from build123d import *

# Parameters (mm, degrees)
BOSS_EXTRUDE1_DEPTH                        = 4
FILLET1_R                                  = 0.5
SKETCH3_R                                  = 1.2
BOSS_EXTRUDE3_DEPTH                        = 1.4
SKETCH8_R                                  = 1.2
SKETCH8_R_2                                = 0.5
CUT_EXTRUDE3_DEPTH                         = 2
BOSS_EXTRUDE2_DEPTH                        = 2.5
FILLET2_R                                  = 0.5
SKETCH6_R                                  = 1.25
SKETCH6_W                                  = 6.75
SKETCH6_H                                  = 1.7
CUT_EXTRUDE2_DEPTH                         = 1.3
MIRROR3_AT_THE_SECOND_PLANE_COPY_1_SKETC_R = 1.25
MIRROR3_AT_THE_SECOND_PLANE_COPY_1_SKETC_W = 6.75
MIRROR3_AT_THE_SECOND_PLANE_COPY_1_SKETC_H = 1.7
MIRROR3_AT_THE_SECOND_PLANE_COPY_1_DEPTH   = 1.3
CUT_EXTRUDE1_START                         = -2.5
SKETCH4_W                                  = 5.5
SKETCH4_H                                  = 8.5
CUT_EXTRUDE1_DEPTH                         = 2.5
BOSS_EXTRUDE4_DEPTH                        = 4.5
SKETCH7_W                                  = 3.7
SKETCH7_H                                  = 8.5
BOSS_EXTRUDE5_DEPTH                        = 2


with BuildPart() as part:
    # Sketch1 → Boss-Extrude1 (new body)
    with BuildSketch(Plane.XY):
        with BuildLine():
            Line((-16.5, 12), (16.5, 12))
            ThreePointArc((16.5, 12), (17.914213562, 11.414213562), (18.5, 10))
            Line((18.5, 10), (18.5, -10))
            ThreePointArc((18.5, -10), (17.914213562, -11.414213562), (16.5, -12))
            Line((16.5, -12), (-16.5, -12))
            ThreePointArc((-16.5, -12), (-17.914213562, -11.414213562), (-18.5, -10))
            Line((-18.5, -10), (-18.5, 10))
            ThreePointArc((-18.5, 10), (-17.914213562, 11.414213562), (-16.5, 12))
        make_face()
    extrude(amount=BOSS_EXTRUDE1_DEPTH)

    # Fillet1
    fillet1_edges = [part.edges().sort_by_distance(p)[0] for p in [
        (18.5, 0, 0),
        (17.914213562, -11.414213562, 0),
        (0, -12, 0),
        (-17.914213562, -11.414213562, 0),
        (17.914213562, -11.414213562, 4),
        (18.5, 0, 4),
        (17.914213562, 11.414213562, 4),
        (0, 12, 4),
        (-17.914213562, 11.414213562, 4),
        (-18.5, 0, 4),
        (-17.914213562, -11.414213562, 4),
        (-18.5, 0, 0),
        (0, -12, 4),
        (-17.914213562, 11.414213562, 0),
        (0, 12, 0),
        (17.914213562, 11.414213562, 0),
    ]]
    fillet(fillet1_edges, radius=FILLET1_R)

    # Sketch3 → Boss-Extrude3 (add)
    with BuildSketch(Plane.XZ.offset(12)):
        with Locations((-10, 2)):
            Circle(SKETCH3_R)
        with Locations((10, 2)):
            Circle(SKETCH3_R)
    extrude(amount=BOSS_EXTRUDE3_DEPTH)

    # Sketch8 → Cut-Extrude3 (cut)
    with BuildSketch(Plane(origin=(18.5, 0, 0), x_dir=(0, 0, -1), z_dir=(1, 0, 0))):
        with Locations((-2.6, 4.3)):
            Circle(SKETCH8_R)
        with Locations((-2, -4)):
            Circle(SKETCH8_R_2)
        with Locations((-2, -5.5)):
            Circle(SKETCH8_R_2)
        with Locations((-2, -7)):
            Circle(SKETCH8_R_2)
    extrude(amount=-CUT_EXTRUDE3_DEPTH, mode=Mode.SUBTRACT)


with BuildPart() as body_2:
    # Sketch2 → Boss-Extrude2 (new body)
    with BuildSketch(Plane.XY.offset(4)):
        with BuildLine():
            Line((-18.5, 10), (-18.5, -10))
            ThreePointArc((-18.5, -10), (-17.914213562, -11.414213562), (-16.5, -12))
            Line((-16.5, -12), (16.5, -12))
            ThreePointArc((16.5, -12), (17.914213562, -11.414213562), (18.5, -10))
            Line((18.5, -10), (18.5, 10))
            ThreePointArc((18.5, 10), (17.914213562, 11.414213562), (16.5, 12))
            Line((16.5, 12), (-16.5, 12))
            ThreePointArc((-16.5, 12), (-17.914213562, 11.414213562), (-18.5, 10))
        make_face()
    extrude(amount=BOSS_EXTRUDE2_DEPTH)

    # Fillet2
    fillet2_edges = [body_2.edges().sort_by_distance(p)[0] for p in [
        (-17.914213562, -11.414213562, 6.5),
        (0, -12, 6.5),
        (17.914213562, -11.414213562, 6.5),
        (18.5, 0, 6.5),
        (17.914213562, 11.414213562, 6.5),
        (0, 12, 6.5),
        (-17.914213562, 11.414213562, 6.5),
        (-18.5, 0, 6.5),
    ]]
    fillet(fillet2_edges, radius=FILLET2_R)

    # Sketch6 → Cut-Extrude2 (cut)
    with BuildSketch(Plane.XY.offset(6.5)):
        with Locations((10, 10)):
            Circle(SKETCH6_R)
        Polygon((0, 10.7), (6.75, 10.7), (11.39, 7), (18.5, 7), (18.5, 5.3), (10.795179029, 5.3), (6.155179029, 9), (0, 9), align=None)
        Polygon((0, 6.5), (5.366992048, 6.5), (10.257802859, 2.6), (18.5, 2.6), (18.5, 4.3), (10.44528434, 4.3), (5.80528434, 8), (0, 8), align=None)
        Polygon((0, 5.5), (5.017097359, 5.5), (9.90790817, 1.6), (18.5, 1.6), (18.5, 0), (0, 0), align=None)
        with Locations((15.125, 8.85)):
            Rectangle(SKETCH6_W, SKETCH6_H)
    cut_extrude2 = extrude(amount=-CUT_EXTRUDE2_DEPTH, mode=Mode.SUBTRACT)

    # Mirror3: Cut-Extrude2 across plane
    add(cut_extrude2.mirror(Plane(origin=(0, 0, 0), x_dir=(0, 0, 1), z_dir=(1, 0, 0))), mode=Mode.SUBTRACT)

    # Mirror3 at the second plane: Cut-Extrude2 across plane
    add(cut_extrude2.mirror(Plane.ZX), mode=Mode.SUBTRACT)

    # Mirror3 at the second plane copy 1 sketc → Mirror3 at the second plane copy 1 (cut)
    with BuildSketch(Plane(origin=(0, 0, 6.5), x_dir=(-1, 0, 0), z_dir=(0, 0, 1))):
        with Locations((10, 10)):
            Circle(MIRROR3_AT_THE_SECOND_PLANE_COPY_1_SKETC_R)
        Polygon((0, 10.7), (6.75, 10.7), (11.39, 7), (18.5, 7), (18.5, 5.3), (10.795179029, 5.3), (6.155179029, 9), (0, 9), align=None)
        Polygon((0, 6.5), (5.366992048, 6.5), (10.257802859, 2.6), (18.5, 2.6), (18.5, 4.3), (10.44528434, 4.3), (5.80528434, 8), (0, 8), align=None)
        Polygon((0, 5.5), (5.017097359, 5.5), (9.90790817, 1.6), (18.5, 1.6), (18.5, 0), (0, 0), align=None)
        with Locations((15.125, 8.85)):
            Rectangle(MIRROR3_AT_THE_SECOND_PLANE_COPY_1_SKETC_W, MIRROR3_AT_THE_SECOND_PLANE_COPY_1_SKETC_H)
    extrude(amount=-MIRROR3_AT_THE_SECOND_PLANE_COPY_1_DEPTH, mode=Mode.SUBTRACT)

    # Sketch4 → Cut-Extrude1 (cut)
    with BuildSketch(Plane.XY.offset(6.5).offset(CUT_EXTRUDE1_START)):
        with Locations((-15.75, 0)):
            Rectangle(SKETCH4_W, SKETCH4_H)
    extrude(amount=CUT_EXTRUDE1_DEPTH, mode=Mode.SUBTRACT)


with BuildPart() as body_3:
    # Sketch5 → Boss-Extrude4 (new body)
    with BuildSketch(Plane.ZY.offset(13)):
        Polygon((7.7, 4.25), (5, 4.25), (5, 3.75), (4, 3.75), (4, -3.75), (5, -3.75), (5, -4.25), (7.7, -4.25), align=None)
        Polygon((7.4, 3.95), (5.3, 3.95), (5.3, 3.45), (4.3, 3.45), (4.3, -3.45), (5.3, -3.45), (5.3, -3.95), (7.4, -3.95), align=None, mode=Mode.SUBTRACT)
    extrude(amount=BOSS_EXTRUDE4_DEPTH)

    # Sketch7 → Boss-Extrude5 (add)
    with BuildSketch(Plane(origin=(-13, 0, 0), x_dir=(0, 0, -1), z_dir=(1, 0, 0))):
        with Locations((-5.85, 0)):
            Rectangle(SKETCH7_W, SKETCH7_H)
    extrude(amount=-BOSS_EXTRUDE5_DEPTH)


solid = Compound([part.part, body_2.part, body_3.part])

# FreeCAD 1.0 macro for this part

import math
import FreeCAD as App
import Part
import Sketcher
Q = App.Units.Quantity


def edges_at(feature, points):
    """Names of the edges that pass closest to the given points."""
    edges = feature.Shape.Edges
    near = lambda p: min(range(len(edges)), key=lambda i: edges[i].distToShape(Part.Vertex(*p))[0])
    return sorted({f"Edge{near(p) + 1}" for p in points})

doc = App.newDocument("Part")
params = doc.addObject("Spreadsheet::Sheet", "Params")
for row, (alias, value) in enumerate([
    ("sketch1_radius", "2 mm"),
    ("sketch1_width", "33 mm"),
    ("sketch1_height", "20 mm"),
    ("pad1_length", "4 mm"),
    ("fillet_radius", "0.5 mm"),
    ("sketch2_diameter", "2.4 mm"),
    ("pad2_length", "1.4 mm"),
    ("sketch3_diameter", "1 mm"),
    ("sketch3_diameter2", "2.4 mm"),
    ("pocket1_length", "2 mm"),
    ("sketch4_radius", "2 mm"),
    ("sketch4_width", "33 mm"),
    ("sketch4_height", "20 mm"),
    ("pad3_length", "2.5 mm"),
    ("fillet2_radius", "0.5 mm"),
    ("sketch5_diameter", "2.5 mm"),
    ("sketch5_width", "18.5 mm"),
    ("sketch5_height", "1.7 mm"),
    ("sketch5_height2", "1.5 mm"),
    ("sketch5_height3", "5.5 mm"),
    ("pocket2_length", "1.3 mm"),
    ("sketch6_diameter", "2.5 mm"),
    ("sketch6_width", "18.5 mm"),
    ("sketch6_height", "1.7 mm"),
    ("sketch6_height2", "1.5 mm"),
    ("sketch6_height3", "5.5 mm"),
    ("pocket3_length", "1.3 mm"),
    ("sketch7_width", "5.5 mm"),
    ("sketch7_height", "8.5 mm"),
    ("pocket4_length", "2.5 mm"),
    ("sketch8_height", "1 mm"),
    ("sketch8_width", "0.5 mm"),
    ("sketch8_width2", "7.5 mm"),
    ("sketch8_width3", "7.9 mm"),
    ("sketch8_height2", "2.7 mm"),
    ("pad4_length", "4.5 mm"),
    ("sketch9_width", "8.5 mm"),
    ("sketch9_height", "3.7 mm"),
    ("pad5_length", "2 mm"),
], start=1):
    params.set(f"A{row}", alias)
    params.set(f"B{row}", "=" + value)
    params.setAlias(f"B{row}", alias)

body = doc.addObject("PartDesign::Body", "Body")

sketch1 = body.newObject("Sketcher::SketchObject", "Sketch")
sketch1.AttachmentSupport = (doc.getObject("XY_Plane"), [""])
sketch1.MapMode = "FlatFace"
sketch1.addGeometry(Part.LineSegment(App.Vector(16.5, 12, 0), App.Vector(-16.5, 12, 0)), False)
sketch1.addGeometry(Part.ArcOfCircle(Part.Circle(App.Vector(-16.5, 10, 0), App.Vector(0, 0, 1), 2), math.radians(90), math.radians(180)), False)
sketch1.addGeometry(Part.LineSegment(App.Vector(-18.5, 10, 0), App.Vector(-18.5, -10, 0)), False)
sketch1.addGeometry(Part.ArcOfCircle(Part.Circle(App.Vector(-16.5, -10, 0), App.Vector(0, 0, 1), 2), math.radians(-180), math.radians(-90)), False)
sketch1.addGeometry(Part.LineSegment(App.Vector(-16.5, -12, 0), App.Vector(16.5, -12, 0)), False)
sketch1.addGeometry(Part.ArcOfCircle(Part.Circle(App.Vector(16.5, -10, 0), App.Vector(0, 0, 1), 2), math.radians(-90), math.radians(0)), False)
sketch1.addGeometry(Part.LineSegment(App.Vector(18.5, -10, 0), App.Vector(18.5, 10, 0)), False)
sketch1.addGeometry(Part.ArcOfCircle(Part.Circle(App.Vector(16.5, 10, 0), App.Vector(0, 0, 1), 2), math.radians(0), math.radians(90)), False)
sketch1.addConstraint(Sketcher.Constraint("Tangent", 0, 2, 1, 1))
sketch1.addConstraint(Sketcher.Constraint("Tangent", 1, 2, 2, 1))
sketch1.addConstraint(Sketcher.Constraint("Tangent", 2, 2, 3, 1))
sketch1.addConstraint(Sketcher.Constraint("Tangent", 3, 2, 4, 1))
sketch1.addConstraint(Sketcher.Constraint("Tangent", 4, 2, 5, 1))
sketch1.addConstraint(Sketcher.Constraint("Tangent", 5, 2, 6, 1))
sketch1.addConstraint(Sketcher.Constraint("Tangent", 6, 2, 7, 1))
sketch1.addConstraint(Sketcher.Constraint("Tangent", 7, 2, 0, 1))
sketch1.addConstraint(Sketcher.Constraint("Horizontal", 0))
sketch1.addConstraint(Sketcher.Constraint("Vertical", 2))
sketch1.addConstraint(Sketcher.Constraint("Horizontal", 4))
sketch1.addConstraint(Sketcher.Constraint("Vertical", 6))
sketch1.addConstraint(Sketcher.Constraint("Equal", 1, 3))
sketch1.addConstraint(Sketcher.Constraint("Equal", 3, 5))
sketch1.addConstraint(Sketcher.Constraint("Equal", 5, 7))
sketch1.addConstraint(Sketcher.Constraint("Symmetric", 1, 3, 5, 3, -1, 1))
sketch1.addConstraint(Sketcher.Constraint("Radius", 1, Q("2 mm")))
sketch1.addConstraint(Sketcher.Constraint("DistanceX", 0, 2, 0, 1, Q("33 mm")))
sketch1.addConstraint(Sketcher.Constraint("DistanceY", 2, 2, 2, 1, Q("20 mm")))
sketch1.setExpression("Constraints[16]", "Params.sketch1_radius")
sketch1.setExpression("Constraints[17]", "Params.sketch1_width")
sketch1.setExpression("Constraints[18]", "Params.sketch1_height")
pad1 = body.newObject("PartDesign::Pad", "Pad")
pad1.Profile = sketch1
pad1.setExpression("Length", "Params.pad1_length")
doc.recompute()

fillet = body.newObject("PartDesign::Fillet", "Fillet")
fillet.Base = (pad1, edges_at(pad1, [
    (18.5, 0, 0),
    (17.914, -11.414, 0),
    (0, -12, 0),
    (-17.914, -11.414, 0),
    (17.914, -11.414, 4),
    (18.5, 0, 4),
    (17.914, 11.414, 4),
    (0, 12, 4),
    (-17.914, 11.414, 4),
    (-18.5, 0, 4),
    (-17.914, -11.414, 4),
    (-18.5, 0, 0),
    (0, -12, 4),
    (-17.914, 11.414, 0),
    (0, 12, 0),
    (17.914, 11.414, 0),
]))
fillet.setExpression("Radius", "Params.fillet_radius")

sketch2 = body.newObject("Sketcher::SketchObject", "Sketch001")
sketch2.AttachmentSupport = (doc.getObject("XZ_Plane"), [""])
sketch2.MapMode = "FlatFace"
sketch2.AttachmentOffset = App.Placement(App.Vector(0, 0, 12), App.Rotation())
sketch2.addGeometry(Part.Circle(App.Vector(-10, 2, 0), App.Vector(0, 0, 1), 1.2), False)
sketch2.addGeometry(Part.Circle(App.Vector(10, 2, 0), App.Vector(0, 0, 1), 1.2), False)
sketch2.addConstraint(Sketcher.Constraint("Equal", 0, 1))
sketch2.addConstraint(Sketcher.Constraint("Symmetric", 0, 3, 1, 3, -2))
sketch2.addConstraint(Sketcher.Constraint("Diameter", 0, Q("2.4 mm")))
sketch2.addConstraint(Sketcher.Constraint("DistanceX", 0, 3, -1, 1, Q("10 mm")))
sketch2.addConstraint(Sketcher.Constraint("DistanceY", -1, 1, 0, 3, Q("2 mm")))
sketch2.setExpression("Constraints[2]", "Params.sketch2_diameter")
pad2 = body.newObject("PartDesign::Pad", "Pad001")
pad2.Profile = sketch2
pad2.setExpression("Length", "Params.pad2_length")

sketch3 = body.newObject("Sketcher::SketchObject", "Sketch002")
sketch3.AttachmentSupport = (doc.getObject("YZ_Plane"), [""])
sketch3.MapMode = "FlatFace"
sketch3.AttachmentOffset = App.Placement(App.Vector(0, 0, 18.5), App.Rotation())
sketch3.addGeometry(Part.Circle(App.Vector(4.3, 2.6, 0), App.Vector(0, 0, 1), 1.2), False)
sketch3.addGeometry(Part.Circle(App.Vector(-4, 2, 0), App.Vector(0, 0, 1), 0.5), False)
sketch3.addGeometry(Part.Circle(App.Vector(-5.5, 2, 0), App.Vector(0, 0, 1), 0.5), False)
sketch3.addGeometry(Part.Circle(App.Vector(-7, 2, 0), App.Vector(0, 0, 1), 0.5), False)
sketch3.addConstraint(Sketcher.Constraint("Equal", 1, 2))
sketch3.addConstraint(Sketcher.Constraint("Equal", 2, 3))
sketch3.addConstraint(Sketcher.Constraint("Horizontal", 1, 3, 2, 3))
sketch3.addConstraint(Sketcher.Constraint("Horizontal", 2, 3, 3, 3))
sketch3.addConstraint(Sketcher.Constraint("Diameter", 1, Q("1 mm")))
sketch3.addConstraint(Sketcher.Constraint("Diameter", 0, Q("2.4 mm")))
sketch3.addConstraint(Sketcher.Constraint("DistanceX", 1, 3, -1, 1, Q("4 mm")))
sketch3.addConstraint(Sketcher.Constraint("DistanceY", -1, 1, 1, 3, Q("2 mm")))
sketch3.addConstraint(Sketcher.Constraint("DistanceX", 3, 3, -1, 1, Q("7 mm")))
sketch3.addConstraint(Sketcher.Constraint("DistanceX", -1, 1, 0, 3, Q("4.3 mm")))
sketch3.addConstraint(Sketcher.Constraint("DistanceY", -1, 1, 0, 3, Q("2.6 mm")))
sketch3.addConstraint(Sketcher.Constraint("DistanceX", 2, 3, -1, 1, Q("5.5 mm")))
sketch3.setExpression("Constraints[4]", "Params.sketch3_diameter")
sketch3.setExpression("Constraints[5]", "Params.sketch3_diameter2")
pocket1 = body.newObject("PartDesign::Pocket", "Pocket")
pocket1.Profile = sketch3
pocket1.setExpression("Length", "Params.pocket1_length")
body2 = doc.addObject("PartDesign::Body", "Body001")

sketch4 = body2.newObject("Sketcher::SketchObject", "Sketch003")
sketch4.AttachmentSupport = (doc.getObject("XY_Plane001"), [""])
sketch4.MapMode = "FlatFace"
sketch4.AttachmentOffset = App.Placement(App.Vector(0, 0, 4), App.Rotation())
sketch4.addGeometry(Part.LineSegment(App.Vector(-18.5, 10, 0), App.Vector(-18.5, -10, 0)), False)
sketch4.addGeometry(Part.ArcOfCircle(Part.Circle(App.Vector(-16.5, -10, 0), App.Vector(0, 0, 1), 2), math.radians(-180), math.radians(-90)), False)
sketch4.addGeometry(Part.LineSegment(App.Vector(-16.5, -12, 0), App.Vector(16.5, -12, 0)), False)
sketch4.addGeometry(Part.ArcOfCircle(Part.Circle(App.Vector(16.5, -10, 0), App.Vector(0, 0, 1), 2), math.radians(-90), math.radians(0)), False)
sketch4.addGeometry(Part.LineSegment(App.Vector(18.5, -10, 0), App.Vector(18.5, 10, 0)), False)
sketch4.addGeometry(Part.ArcOfCircle(Part.Circle(App.Vector(16.5, 10, 0), App.Vector(0, 0, 1), 2), math.radians(0), math.radians(90)), False)
sketch4.addGeometry(Part.LineSegment(App.Vector(16.5, 12, 0), App.Vector(-16.5, 12, 0)), False)
sketch4.addGeometry(Part.ArcOfCircle(Part.Circle(App.Vector(-16.5, 10, 0), App.Vector(0, 0, 1), 2), math.radians(90), math.radians(180)), False)
sketch4.addConstraint(Sketcher.Constraint("Tangent", 0, 2, 1, 1))
sketch4.addConstraint(Sketcher.Constraint("Tangent", 1, 2, 2, 1))
sketch4.addConstraint(Sketcher.Constraint("Tangent", 2, 2, 3, 1))
sketch4.addConstraint(Sketcher.Constraint("Tangent", 3, 2, 4, 1))
sketch4.addConstraint(Sketcher.Constraint("Tangent", 4, 2, 5, 1))
sketch4.addConstraint(Sketcher.Constraint("Tangent", 5, 2, 6, 1))
sketch4.addConstraint(Sketcher.Constraint("Tangent", 6, 2, 7, 1))
sketch4.addConstraint(Sketcher.Constraint("Tangent", 7, 2, 0, 1))
sketch4.addConstraint(Sketcher.Constraint("Vertical", 0))
sketch4.addConstraint(Sketcher.Constraint("Horizontal", 2))
sketch4.addConstraint(Sketcher.Constraint("Vertical", 4))
sketch4.addConstraint(Sketcher.Constraint("Horizontal", 6))
sketch4.addConstraint(Sketcher.Constraint("Equal", 1, 3))
sketch4.addConstraint(Sketcher.Constraint("Equal", 3, 5))
sketch4.addConstraint(Sketcher.Constraint("Equal", 5, 7))
sketch4.addConstraint(Sketcher.Constraint("Symmetric", 1, 3, 5, 3, -1, 1))
sketch4.addConstraint(Sketcher.Constraint("Radius", 1, Q("2 mm")))
sketch4.addConstraint(Sketcher.Constraint("DistanceX", 2, 1, 2, 2, Q("33 mm")))
sketch4.addConstraint(Sketcher.Constraint("DistanceY", 0, 2, 0, 1, Q("20 mm")))
sketch4.setExpression("Constraints[16]", "Params.sketch4_radius")
sketch4.setExpression("Constraints[17]", "Params.sketch4_width")
sketch4.setExpression("Constraints[18]", "Params.sketch4_height")
pad3 = body2.newObject("PartDesign::Pad", "Pad002")
pad3.Profile = sketch4
pad3.setExpression("Length", "Params.pad3_length")
doc.recompute()

fillet2 = body2.newObject("PartDesign::Fillet", "Fillet001")
fillet2.Base = (pad3, edges_at(pad3, [
    (-17.914, -11.414, 6.5),
    (0, -12, 6.5),
    (17.914, -11.414, 6.5),
    (18.5, 0, 6.5),
    (17.914, 11.414, 6.5),
    (0, 12, 6.5),
    (-17.914, 11.414, 6.5),
    (-18.5, 0, 6.5),
]))
fillet2.setExpression("Radius", "Params.fillet2_radius")

sketch5 = body2.newObject("Sketcher::SketchObject", "Sketch004")
sketch5.AttachmentSupport = (doc.getObject("XY_Plane001"), [""])
sketch5.MapMode = "FlatFace"
sketch5.AttachmentOffset = App.Placement(App.Vector(0, 0, 6.5), App.Rotation())
sketch5.addGeometry(Part.Circle(App.Vector(10, 10, 0), App.Vector(0, 0, 1), 1.2), False)
sketch5.addGeometry(Part.LineSegment(App.Vector(6.8, 10.7, 0), App.Vector(0, 10.7, 0)), False)
sketch5.addGeometry(Part.LineSegment(App.Vector(0, 10.7, 0), App.Vector(0, 9, 0)), False)
sketch5.addGeometry(Part.LineSegment(App.Vector(0, 9, 0), App.Vector(6.2, 9, 0)), False)
sketch5.addGeometry(Part.LineSegment(App.Vector(6.2, 9, 0), App.Vector(10.8, 5.3, 0)), False)
sketch5.addGeometry(Part.LineSegment(App.Vector(10.8, 5.3, 0), App.Vector(18.5, 5.3, 0)), False)
sketch5.addGeometry(Part.LineSegment(App.Vector(18.5, 5.3, 0), App.Vector(18.5, 7, 0)), False)
sketch5.addGeometry(Part.LineSegment(App.Vector(18.5, 7, 0), App.Vector(11.4, 7, 0)), False)
sketch5.addGeometry(Part.LineSegment(App.Vector(11.4, 7, 0), App.Vector(6.8, 10.7, 0)), False)
sketch5.addGeometry(Part.LineSegment(App.Vector(0, 6.5, 0), App.Vector(5.4, 6.5, 0)), False)
sketch5.addGeometry(Part.LineSegment(App.Vector(5.4, 6.5, 0), App.Vector(10.3, 2.6, 0)), False)
sketch5.addGeometry(Part.LineSegment(App.Vector(10.3, 2.6, 0), App.Vector(18.5, 2.6, 0)), False)
sketch5.addGeometry(Part.LineSegment(App.Vector(18.5, 2.6, 0), App.Vector(18.5, 4.3, 0)), False)
sketch5.addGeometry(Part.LineSegment(App.Vector(18.5, 4.3, 0), App.Vector(10.4, 4.3, 0)), False)
sketch5.addGeometry(Part.LineSegment(App.Vector(10.4, 4.3, 0), App.Vector(5.8, 8, 0)), False)
sketch5.addGeometry(Part.LineSegment(App.Vector(5.8, 8, 0), App.Vector(0, 8, 0)), False)
sketch5.addGeometry(Part.LineSegment(App.Vector(0, 8, 0), App.Vector(0, 6.5, 0)), False)
sketch5.addGeometry(Part.LineSegment(App.Vector(5, 5.5, 0), App.Vector(0, 5.5, 0)), False)
sketch5.addGeometry(Part.LineSegment(App.Vector(0, 5.5, 0), App.Vector(0, 0, 0)), False)
sketch5.addGeometry(Part.LineSegment(App.Vector(0, 0, 0), App.Vector(18.5, 0, 0)), False)
sketch5.addGeometry(Part.LineSegment(App.Vector(18.5, 0, 0), App.Vector(18.5, 1.6, 0)), False)
sketch5.addGeometry(Part.LineSegment(App.Vector(18.5, 1.6, 0), App.Vector(9.9, 1.6, 0)), False)
sketch5.addGeometry(Part.LineSegment(App.Vector(9.9, 1.6, 0), App.Vector(5, 5.5, 0)), False)
sketch5.addGeometry(Part.LineSegment(App.Vector(11.8, 9.7, 0), App.Vector(11.8, 8, 0)), False)
sketch5.addGeometry(Part.LineSegment(App.Vector(11.8, 8, 0), App.Vector(18.5, 8, 0)), False)
sketch5.addGeometry(Part.LineSegment(App.Vector(18.5, 8, 0), App.Vector(18.5, 9.7, 0)), False)
sketch5.addGeometry(Part.LineSegment(App.Vector(18.5, 9.7, 0), App.Vector(11.8, 9.7, 0)), False)
sketch5.addConstraint(Sketcher.Constraint("Coincident", 1, 2, 2, 1))
sketch5.addConstraint(Sketcher.Constraint("Coincident", 2, 2, 3, 1))
sketch5.addConstraint(Sketcher.Constraint("Coincident", 3, 2, 4, 1))
sketch5.addConstraint(Sketcher.Constraint("Coincident", 4, 2, 5, 1))
sketch5.addConstraint(Sketcher.Constraint("Coincident", 5, 2, 6, 1))
sketch5.addConstraint(Sketcher.Constraint("Coincident", 6, 2, 7, 1))
sketch5.addConstraint(Sketcher.Constraint("Coincident", 7, 2, 8, 1))
sketch5.addConstraint(Sketcher.Constraint("Coincident", 8, 2, 1, 1))
sketch5.addConstraint(Sketcher.Constraint("Coincident", 9, 2, 10, 1))
sketch5.addConstraint(Sketcher.Constraint("Coincident", 10, 2, 11, 1))
sketch5.addConstraint(Sketcher.Constraint("Coincident", 11, 2, 12, 1))
sketch5.addConstraint(Sketcher.Constraint("Coincident", 12, 2, 13, 1))
sketch5.addConstraint(Sketcher.Constraint("Coincident", 13, 2, 14, 1))
sketch5.addConstraint(Sketcher.Constraint("Coincident", 14, 2, 15, 1))
sketch5.addConstraint(Sketcher.Constraint("Coincident", 15, 2, 16, 1))
sketch5.addConstraint(Sketcher.Constraint("Coincident", 16, 2, 9, 1))
sketch5.addConstraint(Sketcher.Constraint("Coincident", 17, 2, 18, 1))
sketch5.addConstraint(Sketcher.Constraint("Coincident", 18, 2, 19, 1))
sketch5.addConstraint(Sketcher.Constraint("Coincident", 19, 2, 20, 1))
sketch5.addConstraint(Sketcher.Constraint("Coincident", 20, 2, 21, 1))
sketch5.addConstraint(Sketcher.Constraint("Coincident", 21, 2, 22, 1))
sketch5.addConstraint(Sketcher.Constraint("Coincident", 22, 2, 17, 1))
sketch5.addConstraint(Sketcher.Constraint("Coincident", 23, 2, 24, 1))
sketch5.addConstraint(Sketcher.Constraint("Coincident", 24, 2, 25, 1))
sketch5.addConstraint(Sketcher.Constraint("Coincident", 25, 2, 26, 1))
sketch5.addConstraint(Sketcher.Constraint("Coincident", 26, 2, 23, 1))
sketch5.addConstraint(Sketcher.Constraint("Horizontal", 1))
sketch5.addConstraint(Sketcher.Constraint("Vertical", 2))
sketch5.addConstraint(Sketcher.Constraint("Horizontal", 3))
sketch5.addConstraint(Sketcher.Constraint("Horizontal", 5))
sketch5.addConstraint(Sketcher.Constraint("Vertical", 6))
sketch5.addConstraint(Sketcher.Constraint("Horizontal", 7))
sketch5.addConstraint(Sketcher.Constraint("Horizontal", 9))
sketch5.addConstraint(Sketcher.Constraint("Horizontal", 11))
sketch5.addConstraint(Sketcher.Constraint("Vertical", 12))
sketch5.addConstraint(Sketcher.Constraint("Horizontal", 13))
sketch5.addConstraint(Sketcher.Constraint("Horizontal", 15))
sketch5.addConstraint(Sketcher.Constraint("Vertical", 16))
sketch5.addConstraint(Sketcher.Constraint("Horizontal", 17))
sketch5.addConstraint(Sketcher.Constraint("Vertical", 18))
sketch5.addConstraint(Sketcher.Constraint("Horizontal", 19))
sketch5.addConstraint(Sketcher.Constraint("Vertical", 20))
sketch5.addConstraint(Sketcher.Constraint("Horizontal", 21))
sketch5.addConstraint(Sketcher.Constraint("Vertical", 23))
sketch5.addConstraint(Sketcher.Constraint("Horizontal", 24))
sketch5.addConstraint(Sketcher.Constraint("Vertical", 25))
sketch5.addConstraint(Sketcher.Constraint("Horizontal", 26))
sketch5.addConstraint(Sketcher.Constraint("Coincident", 18, 2, -1, 1))
sketch5.addConstraint(Sketcher.Constraint("PointOnObject", 1, 2, -2))
sketch5.addConstraint(Sketcher.Constraint("PointOnObject", 15, 2, -2))
sketch5.addConstraint(Sketcher.Constraint("Parallel", 4, 8))
sketch5.addConstraint(Sketcher.Constraint("Parallel", 8, 10))
sketch5.addConstraint(Sketcher.Constraint("Parallel", 10, 14))
sketch5.addConstraint(Sketcher.Constraint("Parallel", 14, 22))
sketch5.addConstraint(Sketcher.Constraint("Horizontal", 15, 2, 23, 2))
sketch5.addConstraint(Sketcher.Constraint("Vertical", 6, 2, 11, 2))
sketch5.addConstraint(Sketcher.Constraint("Vertical", 12, 2, 19, 2))
sketch5.addConstraint(Sketcher.Constraint("Vertical", 20, 2, 24, 2))
sketch5.addConstraint(Sketcher.Constraint("Equal", 1, 24))
sketch5.addConstraint(Sketcher.Constraint("Equal", 2, 6))
sketch5.addConstraint(Sketcher.Constraint("Equal", 6, 12))
sketch5.addConstraint(Sketcher.Constraint("Equal", 12, 23))
sketch5.addConstraint(Sketcher.Constraint("Equal", 8, 14))
sketch5.addConstraint(Sketcher.Constraint("Equal", 10, 22))
sketch5.addConstraint(Sketcher.Constraint("Diameter", 0, Q("2.5 mm")))
sketch5.addConstraint(Sketcher.Constraint("DistanceX", 19, 1, 19, 2, Q("18.5 mm")))
sketch5.addConstraint(Sketcher.Constraint("DistanceY", 2, 2, 2, 1, Q("1.7 mm")))
sketch5.addConstraint(Sketcher.Constraint("DistanceY", 16, 2, 16, 1, Q("1.5 mm")))
sketch5.addConstraint(Sketcher.Constraint("DistanceY", 18, 2, 18, 1, Q("5.5 mm")))
sketch5.addConstraint(Sketcher.Constraint("DistanceY", 20, 1, 20, 2, Q("1.6 mm")))
sketch5.addConstraint(Sketcher.Constraint("DistanceX", -1, 1, 0, 3, Q("10 mm")))
sketch5.addConstraint(Sketcher.Constraint("DistanceY", -1, 1, 0, 3, Q("10 mm")))
sketch5.addConstraint(Sketcher.Constraint("DistanceY", -1, 1, 2, 2, Q("9 mm")))
sketch5.addConstraint(Sketcher.Constraint("DistanceY", -1, 1, 14, 2, Q("8 mm")))
sketch5.addConstraint(Sketcher.Constraint("DistanceX", 8, 2, 26, 2, Q("5 mm")))
sketch5.addConstraint(Sketcher.Constraint("DistanceX", 7, 2, 7, 1, Q("7.11 mm")))
sketch5.addConstraint(Sketcher.Constraint("DistanceX", 3, 1, 3, 2, Q("6.155179 mm")))
sketch5.addConstraint(Sketcher.Constraint("DistanceX", 21, 2, 21, 1, Q("8.592092 mm")))
sketch5.addConstraint(Sketcher.Constraint("DistanceX", 9, 1, 9, 2, Q("5.366992 mm")))
sketch5.addConstraint(Sketcher.Constraint("DistanceX", 13, 2, 13, 1, Q("8.054716 mm")))
sketch5.setExpression("Constraints[64]", "Params.sketch5_diameter")
sketch5.setExpression("Constraints[65]", "Params.sketch5_width")
sketch5.setExpression("Constraints[66]", "Params.sketch5_height")
sketch5.setExpression("Constraints[67]", "Params.sketch5_height2")
sketch5.setExpression("Constraints[68]", "Params.sketch5_height3")
pocket2 = body2.newObject("PartDesign::Pocket", "Pocket001")
pocket2.Profile = sketch5
pocket2.setExpression("Length", "Params.pocket2_length")
doc.recompute()

mirrored = body2.newObject("PartDesign::Mirrored", "Mirrored")
mirrored.Originals = [pocket2]
mirrored.MirrorPlane = (doc.getObject("YZ_Plane001"), [""])
body2.Tip = mirrored
doc.recompute()

mirrored2 = body2.newObject("PartDesign::Mirrored", "Mirrored001")
mirrored2.Originals = [pocket2]
mirrored2.MirrorPlane = (doc.getObject("XZ_Plane001"), [""])
body2.Tip = mirrored2

sketch6 = body2.newObject("Sketcher::SketchObject", "Sketch005")
sketch6.AttachmentSupport = (doc.getObject("XY_Plane001"), [""])
sketch6.MapMode = "FlatFace"
sketch6.AttachmentOffset = App.Placement(App.Vector(0, 0, 6.5), App.Rotation())
sketch6.addGeometry(Part.Circle(App.Vector(-10, -10, 0), App.Vector(0, 0, 1), 1.2), False)
sketch6.addGeometry(Part.LineSegment(App.Vector(-6.8, -10.7, 0), App.Vector(0, -10.7, 0)), False)
sketch6.addGeometry(Part.LineSegment(App.Vector(0, -10.7, 0), App.Vector(0, -9, 0)), False)
sketch6.addGeometry(Part.LineSegment(App.Vector(0, -9, 0), App.Vector(-6.2, -9, 0)), False)
sketch6.addGeometry(Part.LineSegment(App.Vector(-6.2, -9, 0), App.Vector(-10.8, -5.3, 0)), False)
sketch6.addGeometry(Part.LineSegment(App.Vector(-10.8, -5.3, 0), App.Vector(-18.5, -5.3, 0)), False)
sketch6.addGeometry(Part.LineSegment(App.Vector(-18.5, -5.3, 0), App.Vector(-18.5, -7, 0)), False)
sketch6.addGeometry(Part.LineSegment(App.Vector(-18.5, -7, 0), App.Vector(-11.4, -7, 0)), False)
sketch6.addGeometry(Part.LineSegment(App.Vector(-11.4, -7, 0), App.Vector(-6.8, -10.7, 0)), False)
sketch6.addGeometry(Part.LineSegment(App.Vector(0, -6.5, 0), App.Vector(-5.4, -6.5, 0)), False)
sketch6.addGeometry(Part.LineSegment(App.Vector(-5.4, -6.5, 0), App.Vector(-10.3, -2.6, 0)), False)
sketch6.addGeometry(Part.LineSegment(App.Vector(-10.3, -2.6, 0), App.Vector(-18.5, -2.6, 0)), False)
sketch6.addGeometry(Part.LineSegment(App.Vector(-18.5, -2.6, 0), App.Vector(-18.5, -4.3, 0)), False)
sketch6.addGeometry(Part.LineSegment(App.Vector(-18.5, -4.3, 0), App.Vector(-10.4, -4.3, 0)), False)
sketch6.addGeometry(Part.LineSegment(App.Vector(-10.4, -4.3, 0), App.Vector(-5.8, -8, 0)), False)
sketch6.addGeometry(Part.LineSegment(App.Vector(-5.8, -8, 0), App.Vector(0, -8, 0)), False)
sketch6.addGeometry(Part.LineSegment(App.Vector(0, -8, 0), App.Vector(0, -6.5, 0)), False)
sketch6.addGeometry(Part.LineSegment(App.Vector(-5, -5.5, 0), App.Vector(0, -5.5, 0)), False)
sketch6.addGeometry(Part.LineSegment(App.Vector(0, -5.5, 0), App.Vector(0, 0, 0)), False)
sketch6.addGeometry(Part.LineSegment(App.Vector(0, 0, 0), App.Vector(-18.5, 0, 0)), False)
sketch6.addGeometry(Part.LineSegment(App.Vector(-18.5, 0, 0), App.Vector(-18.5, -1.6, 0)), False)
sketch6.addGeometry(Part.LineSegment(App.Vector(-18.5, -1.6, 0), App.Vector(-9.9, -1.6, 0)), False)
sketch6.addGeometry(Part.LineSegment(App.Vector(-9.9, -1.6, 0), App.Vector(-5, -5.5, 0)), False)
sketch6.addGeometry(Part.LineSegment(App.Vector(-11.8, -9.7, 0), App.Vector(-11.8, -8, 0)), False)
sketch6.addGeometry(Part.LineSegment(App.Vector(-11.8, -8, 0), App.Vector(-18.5, -8, 0)), False)
sketch6.addGeometry(Part.LineSegment(App.Vector(-18.5, -8, 0), App.Vector(-18.5, -9.7, 0)), False)
sketch6.addGeometry(Part.LineSegment(App.Vector(-18.5, -9.7, 0), App.Vector(-11.8, -9.7, 0)), False)
sketch6.addConstraint(Sketcher.Constraint("Coincident", 1, 2, 2, 1))
sketch6.addConstraint(Sketcher.Constraint("Coincident", 2, 2, 3, 1))
sketch6.addConstraint(Sketcher.Constraint("Coincident", 3, 2, 4, 1))
sketch6.addConstraint(Sketcher.Constraint("Coincident", 4, 2, 5, 1))
sketch6.addConstraint(Sketcher.Constraint("Coincident", 5, 2, 6, 1))
sketch6.addConstraint(Sketcher.Constraint("Coincident", 6, 2, 7, 1))
sketch6.addConstraint(Sketcher.Constraint("Coincident", 7, 2, 8, 1))
sketch6.addConstraint(Sketcher.Constraint("Coincident", 8, 2, 1, 1))
sketch6.addConstraint(Sketcher.Constraint("Coincident", 9, 2, 10, 1))
sketch6.addConstraint(Sketcher.Constraint("Coincident", 10, 2, 11, 1))
sketch6.addConstraint(Sketcher.Constraint("Coincident", 11, 2, 12, 1))
sketch6.addConstraint(Sketcher.Constraint("Coincident", 12, 2, 13, 1))
sketch6.addConstraint(Sketcher.Constraint("Coincident", 13, 2, 14, 1))
sketch6.addConstraint(Sketcher.Constraint("Coincident", 14, 2, 15, 1))
sketch6.addConstraint(Sketcher.Constraint("Coincident", 15, 2, 16, 1))
sketch6.addConstraint(Sketcher.Constraint("Coincident", 16, 2, 9, 1))
sketch6.addConstraint(Sketcher.Constraint("Coincident", 17, 2, 18, 1))
sketch6.addConstraint(Sketcher.Constraint("Coincident", 18, 2, 19, 1))
sketch6.addConstraint(Sketcher.Constraint("Coincident", 19, 2, 20, 1))
sketch6.addConstraint(Sketcher.Constraint("Coincident", 20, 2, 21, 1))
sketch6.addConstraint(Sketcher.Constraint("Coincident", 21, 2, 22, 1))
sketch6.addConstraint(Sketcher.Constraint("Coincident", 22, 2, 17, 1))
sketch6.addConstraint(Sketcher.Constraint("Coincident", 23, 2, 24, 1))
sketch6.addConstraint(Sketcher.Constraint("Coincident", 24, 2, 25, 1))
sketch6.addConstraint(Sketcher.Constraint("Coincident", 25, 2, 26, 1))
sketch6.addConstraint(Sketcher.Constraint("Coincident", 26, 2, 23, 1))
sketch6.addConstraint(Sketcher.Constraint("Horizontal", 1))
sketch6.addConstraint(Sketcher.Constraint("Vertical", 2))
sketch6.addConstraint(Sketcher.Constraint("Horizontal", 3))
sketch6.addConstraint(Sketcher.Constraint("Horizontal", 5))
sketch6.addConstraint(Sketcher.Constraint("Vertical", 6))
sketch6.addConstraint(Sketcher.Constraint("Horizontal", 7))
sketch6.addConstraint(Sketcher.Constraint("Horizontal", 9))
sketch6.addConstraint(Sketcher.Constraint("Horizontal", 11))
sketch6.addConstraint(Sketcher.Constraint("Vertical", 12))
sketch6.addConstraint(Sketcher.Constraint("Horizontal", 13))
sketch6.addConstraint(Sketcher.Constraint("Horizontal", 15))
sketch6.addConstraint(Sketcher.Constraint("Vertical", 16))
sketch6.addConstraint(Sketcher.Constraint("Horizontal", 17))
sketch6.addConstraint(Sketcher.Constraint("Vertical", 18))
sketch6.addConstraint(Sketcher.Constraint("Horizontal", 19))
sketch6.addConstraint(Sketcher.Constraint("Vertical", 20))
sketch6.addConstraint(Sketcher.Constraint("Horizontal", 21))
sketch6.addConstraint(Sketcher.Constraint("Vertical", 23))
sketch6.addConstraint(Sketcher.Constraint("Horizontal", 24))
sketch6.addConstraint(Sketcher.Constraint("Vertical", 25))
sketch6.addConstraint(Sketcher.Constraint("Horizontal", 26))
sketch6.addConstraint(Sketcher.Constraint("Coincident", 18, 2, -1, 1))
sketch6.addConstraint(Sketcher.Constraint("PointOnObject", 1, 2, -2))
sketch6.addConstraint(Sketcher.Constraint("PointOnObject", 15, 2, -2))
sketch6.addConstraint(Sketcher.Constraint("Parallel", 4, 8))
sketch6.addConstraint(Sketcher.Constraint("Parallel", 8, 10))
sketch6.addConstraint(Sketcher.Constraint("Parallel", 10, 14))
sketch6.addConstraint(Sketcher.Constraint("Parallel", 14, 22))
sketch6.addConstraint(Sketcher.Constraint("Horizontal", 15, 2, 23, 2))
sketch6.addConstraint(Sketcher.Constraint("Vertical", 6, 2, 11, 2))
sketch6.addConstraint(Sketcher.Constraint("Vertical", 12, 2, 19, 2))
sketch6.addConstraint(Sketcher.Constraint("Vertical", 20, 2, 24, 2))
sketch6.addConstraint(Sketcher.Constraint("Equal", 1, 24))
sketch6.addConstraint(Sketcher.Constraint("Equal", 2, 6))
sketch6.addConstraint(Sketcher.Constraint("Equal", 6, 12))
sketch6.addConstraint(Sketcher.Constraint("Equal", 12, 23))
sketch6.addConstraint(Sketcher.Constraint("Equal", 8, 14))
sketch6.addConstraint(Sketcher.Constraint("Equal", 10, 22))
sketch6.addConstraint(Sketcher.Constraint("Diameter", 0, Q("2.5 mm")))
sketch6.addConstraint(Sketcher.Constraint("DistanceX", 19, 2, 19, 1, Q("18.5 mm")))
sketch6.addConstraint(Sketcher.Constraint("DistanceY", 2, 1, 2, 2, Q("1.7 mm")))
sketch6.addConstraint(Sketcher.Constraint("DistanceY", 16, 1, 16, 2, Q("1.5 mm")))
sketch6.addConstraint(Sketcher.Constraint("DistanceY", 18, 1, 18, 2, Q("5.5 mm")))
sketch6.addConstraint(Sketcher.Constraint("DistanceY", 20, 2, 20, 1, Q("1.6 mm")))
sketch6.addConstraint(Sketcher.Constraint("DistanceX", 0, 3, -1, 1, Q("10 mm")))
sketch6.addConstraint(Sketcher.Constraint("DistanceY", 0, 3, -1, 1, Q("10 mm")))
sketch6.addConstraint(Sketcher.Constraint("DistanceY", 2, 2, -1, 1, Q("9 mm")))
sketch6.addConstraint(Sketcher.Constraint("DistanceY", 14, 2, -1, 1, Q("8 mm")))
sketch6.addConstraint(Sketcher.Constraint("DistanceX", 26, 2, 8, 2, Q("5 mm")))
sketch6.addConstraint(Sketcher.Constraint("DistanceX", 7, 1, 7, 2, Q("7.11 mm")))
sketch6.addConstraint(Sketcher.Constraint("DistanceX", 3, 2, 3, 1, Q("6.155179 mm")))
sketch6.addConstraint(Sketcher.Constraint("DistanceX", 21, 1, 21, 2, Q("8.592092 mm")))
sketch6.addConstraint(Sketcher.Constraint("DistanceX", 9, 2, 9, 1, Q("5.366992 mm")))
sketch6.addConstraint(Sketcher.Constraint("DistanceX", 13, 1, 13, 2, Q("8.054716 mm")))
sketch6.setExpression("Constraints[64]", "Params.sketch6_diameter")
sketch6.setExpression("Constraints[65]", "Params.sketch6_width")
sketch6.setExpression("Constraints[66]", "Params.sketch6_height")
sketch6.setExpression("Constraints[67]", "Params.sketch6_height2")
sketch6.setExpression("Constraints[68]", "Params.sketch6_height3")
pocket3 = body2.newObject("PartDesign::Pocket", "Pocket002")
pocket3.Profile = sketch6
pocket3.setExpression("Length", "Params.pocket3_length")

sketch7 = body2.newObject("Sketcher::SketchObject", "Sketch006")
sketch7.AttachmentSupport = (doc.getObject("XY_Plane001"), [""])
sketch7.MapMode = "FlatFace"
sketch7.AttachmentOffset = App.Placement(App.Vector(0, 0, 4), App.Rotation())
sketch7.addGeometry(Part.LineSegment(App.Vector(-18, 4, 0), App.Vector(-18, -4, 0)), False)
sketch7.addGeometry(Part.LineSegment(App.Vector(-18, -4, 0), App.Vector(-13, -4, 0)), False)
sketch7.addGeometry(Part.LineSegment(App.Vector(-13, -4, 0), App.Vector(-13, 4, 0)), False)
sketch7.addGeometry(Part.LineSegment(App.Vector(-13, 4, 0), App.Vector(-18, 4, 0)), False)
sketch7.addConstraint(Sketcher.Constraint("Coincident", 0, 2, 1, 1))
sketch7.addConstraint(Sketcher.Constraint("Coincident", 1, 2, 2, 1))
sketch7.addConstraint(Sketcher.Constraint("Coincident", 2, 2, 3, 1))
sketch7.addConstraint(Sketcher.Constraint("Coincident", 3, 2, 0, 1))
sketch7.addConstraint(Sketcher.Constraint("Vertical", 0))
sketch7.addConstraint(Sketcher.Constraint("Horizontal", 1))
sketch7.addConstraint(Sketcher.Constraint("Vertical", 2))
sketch7.addConstraint(Sketcher.Constraint("Horizontal", 3))
sketch7.addConstraint(Sketcher.Constraint("DistanceX", 1, 1, 1, 2, Q("5.5 mm")))
sketch7.addConstraint(Sketcher.Constraint("DistanceY", 0, 2, 0, 1, Q("8.5 mm")))
sketch7.addConstraint(Sketcher.Constraint("DistanceX", 1, 2, -1, 1, Q("13 mm")))
sketch7.addConstraint(Sketcher.Constraint("DistanceY", 0, 2, -1, 1, Q("4.25 mm")))
sketch7.setExpression("Constraints[8]", "Params.sketch7_width")
sketch7.setExpression("Constraints[9]", "Params.sketch7_height")
pocket4 = body2.newObject("PartDesign::Pocket", "Pocket003")
pocket4.Profile = sketch7
pocket4.setExpression("Length", "Params.pocket4_length")
pocket4.Reversed = True
body3 = doc.addObject("PartDesign::Body", "Body002")

sketch8 = body3.newObject("Sketcher::SketchObject", "Sketch007")
sketch8.AttachmentSupport = (doc.getObject("YZ_Plane002"), [""])
sketch8.MapMode = "FlatFace"
sketch8.AttachmentOffset = App.Placement(App.Vector(0, 0, -13), App.Rotation())
sketch8.addGeometry(Part.LineSegment(App.Vector(4.2, 7.7, 0), App.Vector(4.2, 5, 0)), False)
sketch8.addGeometry(Part.LineSegment(App.Vector(4.2, 5, 0), App.Vector(3.8, 5, 0)), False)
sketch8.addGeometry(Part.LineSegment(App.Vector(3.8, 5, 0), App.Vector(3.8, 4, 0)), False)
sketch8.addGeometry(Part.LineSegment(App.Vector(3.8, 4, 0), App.Vector(-3.8, 4, 0)), False)
sketch8.addGeometry(Part.LineSegment(App.Vector(-3.8, 4, 0), App.Vector(-3.8, 5, 0)), False)
sketch8.addGeometry(Part.LineSegment(App.Vector(-3.8, 5, 0), App.Vector(-4.2, 5, 0)), False)
sketch8.addGeometry(Part.LineSegment(App.Vector(-4.2, 5, 0), App.Vector(-4.2, 7.7, 0)), False)
sketch8.addGeometry(Part.LineSegment(App.Vector(-4.2, 7.7, 0), App.Vector(4.2, 7.7, 0)), False)
sketch8.addGeometry(Part.LineSegment(App.Vector(4, 5.3, 0), App.Vector(4, 7.4, 0)), False)
sketch8.addGeometry(Part.LineSegment(App.Vector(4, 7.4, 0), App.Vector(-4, 7.4, 0)), False)
sketch8.addGeometry(Part.LineSegment(App.Vector(-4, 7.4, 0), App.Vector(-4, 5.3, 0)), False)
sketch8.addGeometry(Part.LineSegment(App.Vector(-4, 5.3, 0), App.Vector(-3.5, 5.3, 0)), False)
sketch8.addGeometry(Part.LineSegment(App.Vector(-3.5, 5.3, 0), App.Vector(-3.5, 4.3, 0)), False)
sketch8.addGeometry(Part.LineSegment(App.Vector(-3.5, 4.3, 0), App.Vector(3.5, 4.3, 0)), False)
sketch8.addGeometry(Part.LineSegment(App.Vector(3.5, 4.3, 0), App.Vector(3.5, 5.3, 0)), False)
sketch8.addGeometry(Part.LineSegment(App.Vector(3.5, 5.3, 0), App.Vector(4, 5.3, 0)), False)
sketch8.addConstraint(Sketcher.Constraint("Coincident", 0, 2, 1, 1))
sketch8.addConstraint(Sketcher.Constraint("Coincident", 1, 2, 2, 1))
sketch8.addConstraint(Sketcher.Constraint("Coincident", 2, 2, 3, 1))
sketch8.addConstraint(Sketcher.Constraint("Coincident", 3, 2, 4, 1))
sketch8.addConstraint(Sketcher.Constraint("Coincident", 4, 2, 5, 1))
sketch8.addConstraint(Sketcher.Constraint("Coincident", 5, 2, 6, 1))
sketch8.addConstraint(Sketcher.Constraint("Coincident", 6, 2, 7, 1))
sketch8.addConstraint(Sketcher.Constraint("Coincident", 7, 2, 0, 1))
sketch8.addConstraint(Sketcher.Constraint("Coincident", 8, 2, 9, 1))
sketch8.addConstraint(Sketcher.Constraint("Coincident", 9, 2, 10, 1))
sketch8.addConstraint(Sketcher.Constraint("Coincident", 10, 2, 11, 1))
sketch8.addConstraint(Sketcher.Constraint("Coincident", 11, 2, 12, 1))
sketch8.addConstraint(Sketcher.Constraint("Coincident", 12, 2, 13, 1))
sketch8.addConstraint(Sketcher.Constraint("Coincident", 13, 2, 14, 1))
sketch8.addConstraint(Sketcher.Constraint("Coincident", 14, 2, 15, 1))
sketch8.addConstraint(Sketcher.Constraint("Coincident", 15, 2, 8, 1))
sketch8.addConstraint(Sketcher.Constraint("Vertical", 0))
sketch8.addConstraint(Sketcher.Constraint("Horizontal", 1))
sketch8.addConstraint(Sketcher.Constraint("Vertical", 2))
sketch8.addConstraint(Sketcher.Constraint("Horizontal", 3))
sketch8.addConstraint(Sketcher.Constraint("Vertical", 4))
sketch8.addConstraint(Sketcher.Constraint("Horizontal", 5))
sketch8.addConstraint(Sketcher.Constraint("Vertical", 6))
sketch8.addConstraint(Sketcher.Constraint("Horizontal", 7))
sketch8.addConstraint(Sketcher.Constraint("Vertical", 8))
sketch8.addConstraint(Sketcher.Constraint("Horizontal", 9))
sketch8.addConstraint(Sketcher.Constraint("Vertical", 10))
sketch8.addConstraint(Sketcher.Constraint("Horizontal", 11))
sketch8.addConstraint(Sketcher.Constraint("Vertical", 12))
sketch8.addConstraint(Sketcher.Constraint("Horizontal", 13))
sketch8.addConstraint(Sketcher.Constraint("Vertical", 14))
sketch8.addConstraint(Sketcher.Constraint("Horizontal", 15))
sketch8.addConstraint(Sketcher.Constraint("Symmetric", 1, 2, 4, 2, -2))
sketch8.addConstraint(Sketcher.Constraint("Symmetric", 11, 2, 14, 2, -2))
sketch8.addConstraint(Sketcher.Constraint("Equal", 1, 5))
sketch8.addConstraint(Sketcher.Constraint("Equal", 5, 11))
sketch8.addConstraint(Sketcher.Constraint("Equal", 11, 15))
sketch8.addConstraint(Sketcher.Constraint("Equal", 4, 12))
sketch8.addConstraint(Sketcher.Constraint("DistanceY", 2, 2, 2, 1, Q("1 mm")))
sketch8.addConstraint(Sketcher.Constraint("DistanceX", 1, 2, 1, 1, Q("0.5 mm")))
sketch8.addConstraint(Sketcher.Constraint("DistanceX", 3, 2, 3, 1, Q("7.5 mm")))
sketch8.addConstraint(Sketcher.Constraint("DistanceX", 9, 2, 9, 1, Q("7.9 mm")))
sketch8.addConstraint(Sketcher.Constraint("DistanceY", 0, 2, 0, 1, Q("2.7 mm")))
sketch8.addConstraint(Sketcher.Constraint("DistanceY", 8, 1, 8, 2, Q("2.1 mm")))
sketch8.addConstraint(Sketcher.Constraint("DistanceY", -1, 1, 0, 2, Q("5 mm")))
sketch8.addConstraint(Sketcher.Constraint("DistanceY", -1, 1, 8, 2, Q("7.4 mm")))
sketch8.setExpression("Constraints[38]", "Params.sketch8_height")
sketch8.setExpression("Constraints[39]", "Params.sketch8_width")
sketch8.setExpression("Constraints[40]", "Params.sketch8_width2")
sketch8.setExpression("Constraints[41]", "Params.sketch8_width3")
sketch8.setExpression("Constraints[42]", "Params.sketch8_height2")
pad4 = body3.newObject("PartDesign::Pad", "Pad003")
pad4.Profile = sketch8
pad4.setExpression("Length", "Params.pad4_length")
pad4.Reversed = True

sketch9 = body3.newObject("Sketcher::SketchObject", "Sketch008")
sketch9.AttachmentSupport = (doc.getObject("YZ_Plane002"), [""])
sketch9.MapMode = "FlatFace"
sketch9.AttachmentOffset = App.Placement(App.Vector(0, 0, -13), App.Rotation())
sketch9.addGeometry(Part.LineSegment(App.Vector(4.2, 7.7, 0), App.Vector(-4.2, 7.7, 0)), False)
sketch9.addGeometry(Part.LineSegment(App.Vector(-4.2, 7.7, 0), App.Vector(-4.2, 4, 0)), False)
sketch9.addGeometry(Part.LineSegment(App.Vector(-4.2, 4, 0), App.Vector(4.2, 4, 0)), False)
sketch9.addGeometry(Part.LineSegment(App.Vector(4.2, 4, 0), App.Vector(4.2, 7.7, 0)), False)
sketch9.addConstraint(Sketcher.Constraint("Coincident", 0, 2, 1, 1))
sketch9.addConstraint(Sketcher.Constraint("Coincident", 1, 2, 2, 1))
sketch9.addConstraint(Sketcher.Constraint("Coincident", 2, 2, 3, 1))
sketch9.addConstraint(Sketcher.Constraint("Coincident", 3, 2, 0, 1))
sketch9.addConstraint(Sketcher.Constraint("Horizontal", 0))
sketch9.addConstraint(Sketcher.Constraint("Vertical", 1))
sketch9.addConstraint(Sketcher.Constraint("Horizontal", 2))
sketch9.addConstraint(Sketcher.Constraint("Vertical", 3))
sketch9.addConstraint(Sketcher.Constraint("DistanceX", 0, 2, 0, 1, Q("8.5 mm")))
sketch9.addConstraint(Sketcher.Constraint("DistanceY", 1, 2, 1, 1, Q("3.7 mm")))
sketch9.addConstraint(Sketcher.Constraint("DistanceY", -1, 1, 1, 2, Q("4 mm")))
sketch9.addConstraint(Sketcher.Constraint("DistanceX", 0, 2, -1, 1, Q("4.25 mm")))
sketch9.setExpression("Constraints[8]", "Params.sketch9_width")
sketch9.setExpression("Constraints[9]", "Params.sketch9_height")
pad5 = body3.newObject("PartDesign::Pad", "Pad004")
pad5.Profile = sketch9
pad5.setExpression("Length", "Params.pad5_length")
pad5.Reversed = True

doc.recompute()
